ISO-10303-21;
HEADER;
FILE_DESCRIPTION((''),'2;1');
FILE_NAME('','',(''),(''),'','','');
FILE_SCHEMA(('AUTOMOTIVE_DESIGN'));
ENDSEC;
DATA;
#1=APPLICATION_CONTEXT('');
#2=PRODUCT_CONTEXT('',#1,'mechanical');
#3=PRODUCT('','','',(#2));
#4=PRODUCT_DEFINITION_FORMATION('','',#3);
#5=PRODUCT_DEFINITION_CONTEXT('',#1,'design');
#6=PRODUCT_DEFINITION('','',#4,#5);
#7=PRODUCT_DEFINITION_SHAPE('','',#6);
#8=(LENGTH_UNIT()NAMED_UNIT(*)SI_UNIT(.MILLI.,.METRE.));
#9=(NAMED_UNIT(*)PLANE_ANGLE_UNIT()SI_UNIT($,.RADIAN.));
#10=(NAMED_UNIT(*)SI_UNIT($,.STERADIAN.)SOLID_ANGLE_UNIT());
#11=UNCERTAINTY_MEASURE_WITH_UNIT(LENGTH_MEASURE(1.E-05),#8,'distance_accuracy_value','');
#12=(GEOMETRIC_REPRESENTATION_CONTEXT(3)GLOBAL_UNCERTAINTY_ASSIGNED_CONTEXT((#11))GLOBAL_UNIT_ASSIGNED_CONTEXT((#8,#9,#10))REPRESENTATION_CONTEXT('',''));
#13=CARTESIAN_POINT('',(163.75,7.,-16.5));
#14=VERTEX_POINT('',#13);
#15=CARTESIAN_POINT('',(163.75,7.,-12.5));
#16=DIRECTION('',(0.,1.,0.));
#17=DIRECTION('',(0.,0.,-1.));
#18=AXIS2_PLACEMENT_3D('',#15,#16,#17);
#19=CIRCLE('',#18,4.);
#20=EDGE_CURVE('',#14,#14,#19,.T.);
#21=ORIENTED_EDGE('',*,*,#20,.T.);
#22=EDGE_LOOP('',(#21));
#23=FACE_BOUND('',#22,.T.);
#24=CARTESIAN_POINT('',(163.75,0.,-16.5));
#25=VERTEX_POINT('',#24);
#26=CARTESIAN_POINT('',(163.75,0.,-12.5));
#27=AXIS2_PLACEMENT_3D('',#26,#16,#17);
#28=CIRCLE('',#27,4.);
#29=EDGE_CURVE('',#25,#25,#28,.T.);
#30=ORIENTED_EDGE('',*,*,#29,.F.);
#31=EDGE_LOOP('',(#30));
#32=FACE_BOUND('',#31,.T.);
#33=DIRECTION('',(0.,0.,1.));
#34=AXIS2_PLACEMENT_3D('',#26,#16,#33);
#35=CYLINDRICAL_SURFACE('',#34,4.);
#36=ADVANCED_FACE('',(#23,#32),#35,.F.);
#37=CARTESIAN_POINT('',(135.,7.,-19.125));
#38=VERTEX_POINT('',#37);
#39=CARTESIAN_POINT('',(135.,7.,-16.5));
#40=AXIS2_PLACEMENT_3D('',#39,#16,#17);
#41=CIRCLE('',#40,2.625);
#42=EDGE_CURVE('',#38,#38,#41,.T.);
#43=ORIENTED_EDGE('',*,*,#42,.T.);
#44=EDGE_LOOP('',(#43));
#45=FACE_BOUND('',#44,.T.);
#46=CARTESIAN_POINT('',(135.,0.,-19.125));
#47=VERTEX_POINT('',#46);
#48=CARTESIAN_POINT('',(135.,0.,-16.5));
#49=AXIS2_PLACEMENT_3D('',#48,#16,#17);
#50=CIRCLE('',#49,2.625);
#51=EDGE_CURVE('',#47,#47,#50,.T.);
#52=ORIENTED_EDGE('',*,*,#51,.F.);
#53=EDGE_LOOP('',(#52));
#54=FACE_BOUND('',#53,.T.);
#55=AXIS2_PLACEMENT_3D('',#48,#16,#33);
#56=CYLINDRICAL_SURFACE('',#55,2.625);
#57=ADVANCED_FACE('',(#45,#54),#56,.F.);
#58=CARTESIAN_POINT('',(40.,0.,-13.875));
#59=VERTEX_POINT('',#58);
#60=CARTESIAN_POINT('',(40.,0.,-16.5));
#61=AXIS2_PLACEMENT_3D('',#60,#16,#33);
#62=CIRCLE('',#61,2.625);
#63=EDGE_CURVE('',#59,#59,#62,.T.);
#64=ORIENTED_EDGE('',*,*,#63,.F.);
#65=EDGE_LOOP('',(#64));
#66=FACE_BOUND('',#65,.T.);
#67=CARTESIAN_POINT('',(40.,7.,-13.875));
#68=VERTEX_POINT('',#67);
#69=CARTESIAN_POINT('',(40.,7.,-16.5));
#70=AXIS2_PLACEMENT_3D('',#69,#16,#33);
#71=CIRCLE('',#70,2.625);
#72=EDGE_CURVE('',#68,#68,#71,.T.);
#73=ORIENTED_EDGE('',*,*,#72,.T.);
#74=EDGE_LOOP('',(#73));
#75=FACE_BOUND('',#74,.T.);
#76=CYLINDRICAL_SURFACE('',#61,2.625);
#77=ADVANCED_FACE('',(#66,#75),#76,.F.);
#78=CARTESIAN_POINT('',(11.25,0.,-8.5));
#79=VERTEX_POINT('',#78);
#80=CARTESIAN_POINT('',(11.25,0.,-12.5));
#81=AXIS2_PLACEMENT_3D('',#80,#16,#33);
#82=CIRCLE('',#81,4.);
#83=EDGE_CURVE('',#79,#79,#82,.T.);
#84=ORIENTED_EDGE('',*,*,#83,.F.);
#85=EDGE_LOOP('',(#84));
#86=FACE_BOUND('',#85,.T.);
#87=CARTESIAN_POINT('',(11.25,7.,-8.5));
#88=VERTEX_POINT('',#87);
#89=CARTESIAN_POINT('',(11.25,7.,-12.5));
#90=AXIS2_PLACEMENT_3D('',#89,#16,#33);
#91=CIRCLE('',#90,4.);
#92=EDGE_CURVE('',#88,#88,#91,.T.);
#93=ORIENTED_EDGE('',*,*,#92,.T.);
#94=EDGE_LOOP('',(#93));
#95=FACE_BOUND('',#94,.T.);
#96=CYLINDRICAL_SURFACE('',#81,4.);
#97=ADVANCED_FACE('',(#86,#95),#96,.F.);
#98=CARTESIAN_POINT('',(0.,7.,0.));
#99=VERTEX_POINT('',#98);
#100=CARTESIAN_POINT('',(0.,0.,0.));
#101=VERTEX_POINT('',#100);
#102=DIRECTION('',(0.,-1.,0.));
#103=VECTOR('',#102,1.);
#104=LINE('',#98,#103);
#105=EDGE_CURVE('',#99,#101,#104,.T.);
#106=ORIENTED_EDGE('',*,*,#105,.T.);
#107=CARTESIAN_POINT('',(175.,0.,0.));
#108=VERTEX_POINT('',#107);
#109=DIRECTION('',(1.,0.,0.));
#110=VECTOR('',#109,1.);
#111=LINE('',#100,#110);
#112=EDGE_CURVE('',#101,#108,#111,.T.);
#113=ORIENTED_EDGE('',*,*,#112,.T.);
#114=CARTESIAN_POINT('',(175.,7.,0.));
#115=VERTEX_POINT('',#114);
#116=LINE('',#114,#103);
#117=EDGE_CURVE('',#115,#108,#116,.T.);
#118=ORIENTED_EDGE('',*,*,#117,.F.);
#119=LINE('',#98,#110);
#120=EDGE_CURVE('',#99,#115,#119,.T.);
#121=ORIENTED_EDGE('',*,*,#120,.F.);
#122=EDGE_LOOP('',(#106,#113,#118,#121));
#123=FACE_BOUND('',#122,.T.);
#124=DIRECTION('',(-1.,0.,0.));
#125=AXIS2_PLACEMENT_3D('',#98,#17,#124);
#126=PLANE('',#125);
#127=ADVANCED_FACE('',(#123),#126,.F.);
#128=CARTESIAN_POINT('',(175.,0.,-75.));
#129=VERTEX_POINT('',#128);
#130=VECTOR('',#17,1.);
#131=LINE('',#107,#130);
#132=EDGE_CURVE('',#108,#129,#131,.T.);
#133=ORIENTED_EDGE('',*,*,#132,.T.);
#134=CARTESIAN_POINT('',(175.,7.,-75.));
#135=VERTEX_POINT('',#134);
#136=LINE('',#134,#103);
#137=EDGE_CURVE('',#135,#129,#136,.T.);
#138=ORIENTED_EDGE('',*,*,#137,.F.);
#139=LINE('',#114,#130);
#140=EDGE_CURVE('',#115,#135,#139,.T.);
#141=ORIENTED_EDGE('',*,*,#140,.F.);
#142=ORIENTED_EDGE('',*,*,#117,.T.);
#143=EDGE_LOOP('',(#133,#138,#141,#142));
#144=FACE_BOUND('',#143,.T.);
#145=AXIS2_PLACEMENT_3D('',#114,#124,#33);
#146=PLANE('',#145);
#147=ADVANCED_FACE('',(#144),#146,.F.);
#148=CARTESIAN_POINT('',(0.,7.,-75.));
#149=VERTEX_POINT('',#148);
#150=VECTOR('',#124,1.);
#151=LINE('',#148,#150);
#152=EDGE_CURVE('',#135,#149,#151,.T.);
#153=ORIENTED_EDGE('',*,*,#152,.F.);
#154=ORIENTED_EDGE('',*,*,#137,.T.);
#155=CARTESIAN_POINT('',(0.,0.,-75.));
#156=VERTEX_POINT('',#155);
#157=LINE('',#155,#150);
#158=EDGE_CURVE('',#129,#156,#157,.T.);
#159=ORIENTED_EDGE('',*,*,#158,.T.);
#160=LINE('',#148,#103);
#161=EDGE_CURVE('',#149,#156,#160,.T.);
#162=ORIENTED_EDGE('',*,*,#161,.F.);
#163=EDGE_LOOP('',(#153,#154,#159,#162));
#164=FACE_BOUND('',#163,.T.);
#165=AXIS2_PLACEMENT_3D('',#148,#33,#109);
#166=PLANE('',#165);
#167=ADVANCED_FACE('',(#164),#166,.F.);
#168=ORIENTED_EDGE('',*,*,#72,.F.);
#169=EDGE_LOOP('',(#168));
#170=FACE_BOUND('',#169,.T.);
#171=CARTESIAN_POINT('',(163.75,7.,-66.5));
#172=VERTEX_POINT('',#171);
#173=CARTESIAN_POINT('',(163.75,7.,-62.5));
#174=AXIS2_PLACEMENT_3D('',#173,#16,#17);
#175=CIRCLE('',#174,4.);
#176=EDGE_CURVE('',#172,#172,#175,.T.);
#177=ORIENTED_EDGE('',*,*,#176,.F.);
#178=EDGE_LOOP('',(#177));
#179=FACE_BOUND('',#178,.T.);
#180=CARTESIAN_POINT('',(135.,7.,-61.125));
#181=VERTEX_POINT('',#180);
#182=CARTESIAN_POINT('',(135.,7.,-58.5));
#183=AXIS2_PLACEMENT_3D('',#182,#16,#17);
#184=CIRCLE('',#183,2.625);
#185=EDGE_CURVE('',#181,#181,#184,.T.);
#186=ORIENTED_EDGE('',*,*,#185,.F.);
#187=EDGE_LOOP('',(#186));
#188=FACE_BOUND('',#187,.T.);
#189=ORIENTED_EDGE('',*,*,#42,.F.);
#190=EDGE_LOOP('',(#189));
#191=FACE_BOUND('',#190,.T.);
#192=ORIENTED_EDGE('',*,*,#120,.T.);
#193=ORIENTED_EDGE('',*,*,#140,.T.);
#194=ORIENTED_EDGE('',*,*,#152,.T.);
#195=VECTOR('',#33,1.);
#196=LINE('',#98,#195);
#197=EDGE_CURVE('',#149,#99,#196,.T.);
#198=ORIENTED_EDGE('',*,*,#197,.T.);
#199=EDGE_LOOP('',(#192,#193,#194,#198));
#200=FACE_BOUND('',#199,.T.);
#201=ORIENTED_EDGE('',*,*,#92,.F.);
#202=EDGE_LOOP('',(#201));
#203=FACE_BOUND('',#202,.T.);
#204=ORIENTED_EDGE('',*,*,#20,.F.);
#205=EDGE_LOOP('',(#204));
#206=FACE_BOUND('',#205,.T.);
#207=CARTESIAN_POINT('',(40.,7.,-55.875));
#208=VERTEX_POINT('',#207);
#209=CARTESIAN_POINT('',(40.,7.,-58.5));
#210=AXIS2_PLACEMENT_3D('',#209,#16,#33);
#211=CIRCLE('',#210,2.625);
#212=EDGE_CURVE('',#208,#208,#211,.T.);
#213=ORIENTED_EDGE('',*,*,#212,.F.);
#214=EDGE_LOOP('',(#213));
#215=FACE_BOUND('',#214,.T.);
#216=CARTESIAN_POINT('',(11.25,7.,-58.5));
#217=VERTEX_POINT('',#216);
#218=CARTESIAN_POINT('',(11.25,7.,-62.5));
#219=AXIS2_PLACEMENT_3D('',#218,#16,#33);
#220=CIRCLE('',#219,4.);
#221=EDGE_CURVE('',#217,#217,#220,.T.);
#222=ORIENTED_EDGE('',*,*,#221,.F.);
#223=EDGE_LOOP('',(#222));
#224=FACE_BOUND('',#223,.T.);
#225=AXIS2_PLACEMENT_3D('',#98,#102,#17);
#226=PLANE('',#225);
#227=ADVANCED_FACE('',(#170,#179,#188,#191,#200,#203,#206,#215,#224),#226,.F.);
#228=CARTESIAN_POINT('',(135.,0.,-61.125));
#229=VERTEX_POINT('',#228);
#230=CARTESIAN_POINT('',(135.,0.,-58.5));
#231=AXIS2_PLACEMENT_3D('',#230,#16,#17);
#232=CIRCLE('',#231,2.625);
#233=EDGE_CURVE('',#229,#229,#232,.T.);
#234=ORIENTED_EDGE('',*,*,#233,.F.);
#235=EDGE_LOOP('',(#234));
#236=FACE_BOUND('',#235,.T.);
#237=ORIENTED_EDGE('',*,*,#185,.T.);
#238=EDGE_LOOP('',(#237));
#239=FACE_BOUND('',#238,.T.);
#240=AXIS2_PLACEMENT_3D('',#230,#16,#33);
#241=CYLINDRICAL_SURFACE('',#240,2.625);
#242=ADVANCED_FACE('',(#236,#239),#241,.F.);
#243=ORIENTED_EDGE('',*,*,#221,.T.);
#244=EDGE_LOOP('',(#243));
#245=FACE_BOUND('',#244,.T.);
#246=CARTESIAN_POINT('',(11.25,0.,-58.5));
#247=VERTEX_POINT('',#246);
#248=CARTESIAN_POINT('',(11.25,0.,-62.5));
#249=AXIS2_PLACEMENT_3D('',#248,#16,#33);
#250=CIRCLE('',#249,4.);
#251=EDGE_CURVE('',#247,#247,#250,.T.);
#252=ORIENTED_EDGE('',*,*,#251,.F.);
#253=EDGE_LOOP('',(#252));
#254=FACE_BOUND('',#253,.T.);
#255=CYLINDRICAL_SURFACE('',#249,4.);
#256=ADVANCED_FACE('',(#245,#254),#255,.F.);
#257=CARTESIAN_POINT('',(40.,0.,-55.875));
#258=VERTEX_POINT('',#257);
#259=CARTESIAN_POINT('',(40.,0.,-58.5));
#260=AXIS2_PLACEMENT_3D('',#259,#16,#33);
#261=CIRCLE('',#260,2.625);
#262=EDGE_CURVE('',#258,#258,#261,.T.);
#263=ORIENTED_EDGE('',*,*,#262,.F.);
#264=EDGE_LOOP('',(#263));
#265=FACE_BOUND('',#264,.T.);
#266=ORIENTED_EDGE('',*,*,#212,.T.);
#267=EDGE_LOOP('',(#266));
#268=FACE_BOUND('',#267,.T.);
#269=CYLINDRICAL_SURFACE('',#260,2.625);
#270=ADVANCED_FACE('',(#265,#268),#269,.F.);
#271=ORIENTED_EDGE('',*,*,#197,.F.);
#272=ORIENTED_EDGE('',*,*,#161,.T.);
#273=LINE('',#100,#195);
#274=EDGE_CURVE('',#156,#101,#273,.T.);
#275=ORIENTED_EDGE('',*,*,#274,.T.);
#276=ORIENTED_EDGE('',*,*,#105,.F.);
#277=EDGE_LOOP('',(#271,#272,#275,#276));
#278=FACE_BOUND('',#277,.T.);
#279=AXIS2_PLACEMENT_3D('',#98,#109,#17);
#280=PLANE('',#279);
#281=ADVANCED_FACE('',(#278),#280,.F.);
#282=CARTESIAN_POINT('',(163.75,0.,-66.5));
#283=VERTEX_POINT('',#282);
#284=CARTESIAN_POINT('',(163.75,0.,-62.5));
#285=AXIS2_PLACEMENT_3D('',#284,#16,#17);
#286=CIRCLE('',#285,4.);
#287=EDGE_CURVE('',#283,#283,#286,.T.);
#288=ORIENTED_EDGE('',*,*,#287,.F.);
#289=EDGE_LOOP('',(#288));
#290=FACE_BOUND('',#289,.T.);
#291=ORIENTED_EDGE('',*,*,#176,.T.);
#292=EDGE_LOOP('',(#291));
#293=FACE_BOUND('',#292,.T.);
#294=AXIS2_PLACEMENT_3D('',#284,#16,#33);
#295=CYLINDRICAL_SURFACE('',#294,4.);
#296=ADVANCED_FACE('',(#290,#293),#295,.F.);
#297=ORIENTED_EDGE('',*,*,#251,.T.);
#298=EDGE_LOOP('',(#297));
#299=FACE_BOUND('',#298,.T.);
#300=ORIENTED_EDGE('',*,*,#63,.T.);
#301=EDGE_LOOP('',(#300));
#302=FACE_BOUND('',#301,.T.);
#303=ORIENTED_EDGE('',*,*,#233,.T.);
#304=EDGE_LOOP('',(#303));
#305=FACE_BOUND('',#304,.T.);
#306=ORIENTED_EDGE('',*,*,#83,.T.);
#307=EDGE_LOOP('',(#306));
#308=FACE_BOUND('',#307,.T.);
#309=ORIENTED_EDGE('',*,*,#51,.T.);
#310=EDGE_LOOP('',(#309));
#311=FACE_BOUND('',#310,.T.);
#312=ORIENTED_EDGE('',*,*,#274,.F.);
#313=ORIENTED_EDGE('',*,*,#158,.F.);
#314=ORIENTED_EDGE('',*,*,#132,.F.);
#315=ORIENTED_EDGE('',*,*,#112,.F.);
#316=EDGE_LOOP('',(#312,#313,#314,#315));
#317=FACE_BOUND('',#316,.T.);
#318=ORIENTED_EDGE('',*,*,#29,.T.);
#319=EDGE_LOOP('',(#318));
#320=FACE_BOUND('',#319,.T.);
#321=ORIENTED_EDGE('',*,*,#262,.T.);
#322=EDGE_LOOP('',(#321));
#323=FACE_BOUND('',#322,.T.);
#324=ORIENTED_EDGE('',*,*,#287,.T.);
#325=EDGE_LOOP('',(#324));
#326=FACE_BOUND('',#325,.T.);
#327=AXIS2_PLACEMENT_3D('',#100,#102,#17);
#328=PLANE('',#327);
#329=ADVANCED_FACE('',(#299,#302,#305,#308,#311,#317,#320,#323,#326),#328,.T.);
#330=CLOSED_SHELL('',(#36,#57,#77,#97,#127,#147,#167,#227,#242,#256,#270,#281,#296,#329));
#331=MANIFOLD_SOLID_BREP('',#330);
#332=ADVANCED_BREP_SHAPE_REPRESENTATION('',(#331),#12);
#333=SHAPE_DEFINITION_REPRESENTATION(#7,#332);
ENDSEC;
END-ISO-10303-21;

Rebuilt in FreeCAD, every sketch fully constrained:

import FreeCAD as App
import Part
import Sketcher
from FreeCAD import Vector
Q = App.Units.Quantity

doc = App.newDocument("Part")
body = doc.addObject("PartDesign::Body", "Body")

sketch1 = body.newObject("Sketcher::SketchObject", "Sketch")
sketch1.AttachmentSupport = (doc.getObject("XZ_Plane"), [""])
sketch1.MapMode = "FlatFace"
sketch1.addGeometry(Part.LineSegment(Vector(0, -75, 0), Vector(0, 0, 0)), False)
sketch1.addGeometry(Part.LineSegment(Vector(0, 0, 0), Vector(175, 0, 0)), False)
sketch1.addGeometry(Part.LineSegment(Vector(175, 0, 0), Vector(175, -75, 0)), False)
sketch1.addGeometry(Part.LineSegment(Vector(175, -75, 0), Vector(0, -75, 0)), False)
sketch1.addConstraint(Sketcher.Constraint("Coincident", 0, 2, 1, 1))
sketch1.addConstraint(Sketcher.Constraint("Coincident", 1, 2, 2, 1))
sketch1.addConstraint(Sketcher.Constraint("Coincident", 2, 2, 3, 1))
sketch1.addConstraint(Sketcher.Constraint("Coincident", 3, 2, 0, 1))
sketch1.addConstraint(Sketcher.Constraint("Vertical", 0))
sketch1.addConstraint(Sketcher.Constraint("Horizontal", 1))
sketch1.addConstraint(Sketcher.Constraint("Vertical", 2))
sketch1.addConstraint(Sketcher.Constraint("Horizontal", 3))
sketch1.addConstraint(Sketcher.Constraint("Coincident", 0, 2, -1, 1))
sketch1.addConstraint(Sketcher.Constraint("DistanceX", 1, 1, 1, 2, Q("175 mm")))
sketch1.addConstraint(Sketcher.Constraint("DistanceY", 0, 1, 0, 2, Q("75 mm")))
pad1 = body.newObject("PartDesign::Pad", "Pad")
pad1.Profile = sketch1
pad1.Length = 7
pad1.Reversed = True

sketch2 = body.newObject("Sketcher::SketchObject", "Sketch001")
sketch2.AttachmentSupport = (doc.getObject("XZ_Plane"), [""])
sketch2.MapMode = "FlatFace"
sketch2.AttachmentOffset = App.Placement(Vector(0, 0, -7), App.Rotation())
sketch2.addGeometry(Part.Circle(Vector(11.25, -62.5, 0), Vector(0, 0, 1), 4), False)
sketch2.addGeometry(Part.Circle(Vector(11.25, -12.5, 0), Vector(0, 0, 1), 4), False)
sketch2.addGeometry(Part.Circle(Vector(163.75, -12.5, 0), Vector(0, 0, 1), 4), False)
sketch2.addGeometry(Part.Circle(Vector(163.75, -62.5, 0), Vector(0, 0, 1), 4), False)
sketch2.addGeometry(Part.Circle(Vector(40, -58.5, 0), Vector(0, 0, 1), 2.625), False)
sketch2.addGeometry(Part.Circle(Vector(40, -16.5, 0), Vector(0, 0, 1), 2.625), False)
sketch2.addGeometry(Part.Circle(Vector(135, -16.5, 0), Vector(0, 0, 1), 2.625), False)
sketch2.addGeometry(Part.Circle(Vector(135, -58.5, 0), Vector(0, 0, 1), 2.625), False)
sketch2.addConstraint(Sketcher.Constraint("Equal", 0, 1))
sketch2.addConstraint(Sketcher.Constraint("Equal", 1, 2))
sketch2.addConstraint(Sketcher.Constraint("Equal", 2, 3))
sketch2.addConstraint(Sketcher.Constraint("Equal", 4, 5))
sketch2.addConstraint(Sketcher.Constraint("Equal", 5, 6))
sketch2.addConstraint(Sketcher.Constraint("Equal", 6, 7))
sketch2.addConstraint(Sketcher.Constraint("Horizontal", 1, 3, 2, 3))
sketch2.addConstraint(Sketcher.Constraint("Horizontal", 0, 3, 3, 3))
sketch2.addConstraint(Sketcher.Constraint("Horizontal", 5, 3, 6, 3))
sketch2.addConstraint(Sketcher.Constraint("Horizontal", 4, 3, 7, 3))
sketch2.addConstraint(Sketcher.Constraint("Vertical", 0, 3, 1, 3))
sketch2.addConstraint(Sketcher.Constraint("Vertical", 2, 3, 3, 3))
sketch2.addConstraint(Sketcher.Constraint("Vertical", 4, 3, 5, 3))
sketch2.addConstraint(Sketcher.Constraint("Vertical", 6, 3, 7, 3))
sketch2.addConstraint(Sketcher.Constraint("Diameter", 0, Q("8 mm")))
sketch2.addConstraint(Sketcher.Constraint("Diameter", 4, Q("5.25 mm")))
sketch2.addConstraint(Sketcher.Constraint("DistanceX", -1, 1, 4, 3, Q("40 mm")))
sketch2.addConstraint(Sketcher.Constraint("DistanceX", -1, 1, 6, 3, Q("135 mm")))
sketch2.addConstraint(Sketcher.Constraint("DistanceY", 0, 3, 1, 3, Q("50 mm")))
sketch2.addConstraint(Sketcher.Constraint("DistanceY", 0, 3, 4, 3, Q("4 mm")))
sketch2.addConstraint(Sketcher.Constraint("DistanceY", 5, 3, 1, 3, Q("4 mm")))
sketch2.addConstraint(Sketcher.Constraint("DistanceY", 0, 3, -1, 1, Q("62.5 mm")))
sketch2.addConstraint(Sketcher.Constraint("DistanceX", 1, 3, 2, 3, Q("152.5 mm")))
sketch2.addConstraint(Sketcher.Constraint("DistanceX", -1, 1, 0, 3, Q("11.25 mm")))
pocket1 = body.newObject("PartDesign::Pocket", "Pocket")
pocket1.Profile = sketch2
pocket1.Type = "ThroughAll"
pocket1.Reversed = True

doc.recompute()
